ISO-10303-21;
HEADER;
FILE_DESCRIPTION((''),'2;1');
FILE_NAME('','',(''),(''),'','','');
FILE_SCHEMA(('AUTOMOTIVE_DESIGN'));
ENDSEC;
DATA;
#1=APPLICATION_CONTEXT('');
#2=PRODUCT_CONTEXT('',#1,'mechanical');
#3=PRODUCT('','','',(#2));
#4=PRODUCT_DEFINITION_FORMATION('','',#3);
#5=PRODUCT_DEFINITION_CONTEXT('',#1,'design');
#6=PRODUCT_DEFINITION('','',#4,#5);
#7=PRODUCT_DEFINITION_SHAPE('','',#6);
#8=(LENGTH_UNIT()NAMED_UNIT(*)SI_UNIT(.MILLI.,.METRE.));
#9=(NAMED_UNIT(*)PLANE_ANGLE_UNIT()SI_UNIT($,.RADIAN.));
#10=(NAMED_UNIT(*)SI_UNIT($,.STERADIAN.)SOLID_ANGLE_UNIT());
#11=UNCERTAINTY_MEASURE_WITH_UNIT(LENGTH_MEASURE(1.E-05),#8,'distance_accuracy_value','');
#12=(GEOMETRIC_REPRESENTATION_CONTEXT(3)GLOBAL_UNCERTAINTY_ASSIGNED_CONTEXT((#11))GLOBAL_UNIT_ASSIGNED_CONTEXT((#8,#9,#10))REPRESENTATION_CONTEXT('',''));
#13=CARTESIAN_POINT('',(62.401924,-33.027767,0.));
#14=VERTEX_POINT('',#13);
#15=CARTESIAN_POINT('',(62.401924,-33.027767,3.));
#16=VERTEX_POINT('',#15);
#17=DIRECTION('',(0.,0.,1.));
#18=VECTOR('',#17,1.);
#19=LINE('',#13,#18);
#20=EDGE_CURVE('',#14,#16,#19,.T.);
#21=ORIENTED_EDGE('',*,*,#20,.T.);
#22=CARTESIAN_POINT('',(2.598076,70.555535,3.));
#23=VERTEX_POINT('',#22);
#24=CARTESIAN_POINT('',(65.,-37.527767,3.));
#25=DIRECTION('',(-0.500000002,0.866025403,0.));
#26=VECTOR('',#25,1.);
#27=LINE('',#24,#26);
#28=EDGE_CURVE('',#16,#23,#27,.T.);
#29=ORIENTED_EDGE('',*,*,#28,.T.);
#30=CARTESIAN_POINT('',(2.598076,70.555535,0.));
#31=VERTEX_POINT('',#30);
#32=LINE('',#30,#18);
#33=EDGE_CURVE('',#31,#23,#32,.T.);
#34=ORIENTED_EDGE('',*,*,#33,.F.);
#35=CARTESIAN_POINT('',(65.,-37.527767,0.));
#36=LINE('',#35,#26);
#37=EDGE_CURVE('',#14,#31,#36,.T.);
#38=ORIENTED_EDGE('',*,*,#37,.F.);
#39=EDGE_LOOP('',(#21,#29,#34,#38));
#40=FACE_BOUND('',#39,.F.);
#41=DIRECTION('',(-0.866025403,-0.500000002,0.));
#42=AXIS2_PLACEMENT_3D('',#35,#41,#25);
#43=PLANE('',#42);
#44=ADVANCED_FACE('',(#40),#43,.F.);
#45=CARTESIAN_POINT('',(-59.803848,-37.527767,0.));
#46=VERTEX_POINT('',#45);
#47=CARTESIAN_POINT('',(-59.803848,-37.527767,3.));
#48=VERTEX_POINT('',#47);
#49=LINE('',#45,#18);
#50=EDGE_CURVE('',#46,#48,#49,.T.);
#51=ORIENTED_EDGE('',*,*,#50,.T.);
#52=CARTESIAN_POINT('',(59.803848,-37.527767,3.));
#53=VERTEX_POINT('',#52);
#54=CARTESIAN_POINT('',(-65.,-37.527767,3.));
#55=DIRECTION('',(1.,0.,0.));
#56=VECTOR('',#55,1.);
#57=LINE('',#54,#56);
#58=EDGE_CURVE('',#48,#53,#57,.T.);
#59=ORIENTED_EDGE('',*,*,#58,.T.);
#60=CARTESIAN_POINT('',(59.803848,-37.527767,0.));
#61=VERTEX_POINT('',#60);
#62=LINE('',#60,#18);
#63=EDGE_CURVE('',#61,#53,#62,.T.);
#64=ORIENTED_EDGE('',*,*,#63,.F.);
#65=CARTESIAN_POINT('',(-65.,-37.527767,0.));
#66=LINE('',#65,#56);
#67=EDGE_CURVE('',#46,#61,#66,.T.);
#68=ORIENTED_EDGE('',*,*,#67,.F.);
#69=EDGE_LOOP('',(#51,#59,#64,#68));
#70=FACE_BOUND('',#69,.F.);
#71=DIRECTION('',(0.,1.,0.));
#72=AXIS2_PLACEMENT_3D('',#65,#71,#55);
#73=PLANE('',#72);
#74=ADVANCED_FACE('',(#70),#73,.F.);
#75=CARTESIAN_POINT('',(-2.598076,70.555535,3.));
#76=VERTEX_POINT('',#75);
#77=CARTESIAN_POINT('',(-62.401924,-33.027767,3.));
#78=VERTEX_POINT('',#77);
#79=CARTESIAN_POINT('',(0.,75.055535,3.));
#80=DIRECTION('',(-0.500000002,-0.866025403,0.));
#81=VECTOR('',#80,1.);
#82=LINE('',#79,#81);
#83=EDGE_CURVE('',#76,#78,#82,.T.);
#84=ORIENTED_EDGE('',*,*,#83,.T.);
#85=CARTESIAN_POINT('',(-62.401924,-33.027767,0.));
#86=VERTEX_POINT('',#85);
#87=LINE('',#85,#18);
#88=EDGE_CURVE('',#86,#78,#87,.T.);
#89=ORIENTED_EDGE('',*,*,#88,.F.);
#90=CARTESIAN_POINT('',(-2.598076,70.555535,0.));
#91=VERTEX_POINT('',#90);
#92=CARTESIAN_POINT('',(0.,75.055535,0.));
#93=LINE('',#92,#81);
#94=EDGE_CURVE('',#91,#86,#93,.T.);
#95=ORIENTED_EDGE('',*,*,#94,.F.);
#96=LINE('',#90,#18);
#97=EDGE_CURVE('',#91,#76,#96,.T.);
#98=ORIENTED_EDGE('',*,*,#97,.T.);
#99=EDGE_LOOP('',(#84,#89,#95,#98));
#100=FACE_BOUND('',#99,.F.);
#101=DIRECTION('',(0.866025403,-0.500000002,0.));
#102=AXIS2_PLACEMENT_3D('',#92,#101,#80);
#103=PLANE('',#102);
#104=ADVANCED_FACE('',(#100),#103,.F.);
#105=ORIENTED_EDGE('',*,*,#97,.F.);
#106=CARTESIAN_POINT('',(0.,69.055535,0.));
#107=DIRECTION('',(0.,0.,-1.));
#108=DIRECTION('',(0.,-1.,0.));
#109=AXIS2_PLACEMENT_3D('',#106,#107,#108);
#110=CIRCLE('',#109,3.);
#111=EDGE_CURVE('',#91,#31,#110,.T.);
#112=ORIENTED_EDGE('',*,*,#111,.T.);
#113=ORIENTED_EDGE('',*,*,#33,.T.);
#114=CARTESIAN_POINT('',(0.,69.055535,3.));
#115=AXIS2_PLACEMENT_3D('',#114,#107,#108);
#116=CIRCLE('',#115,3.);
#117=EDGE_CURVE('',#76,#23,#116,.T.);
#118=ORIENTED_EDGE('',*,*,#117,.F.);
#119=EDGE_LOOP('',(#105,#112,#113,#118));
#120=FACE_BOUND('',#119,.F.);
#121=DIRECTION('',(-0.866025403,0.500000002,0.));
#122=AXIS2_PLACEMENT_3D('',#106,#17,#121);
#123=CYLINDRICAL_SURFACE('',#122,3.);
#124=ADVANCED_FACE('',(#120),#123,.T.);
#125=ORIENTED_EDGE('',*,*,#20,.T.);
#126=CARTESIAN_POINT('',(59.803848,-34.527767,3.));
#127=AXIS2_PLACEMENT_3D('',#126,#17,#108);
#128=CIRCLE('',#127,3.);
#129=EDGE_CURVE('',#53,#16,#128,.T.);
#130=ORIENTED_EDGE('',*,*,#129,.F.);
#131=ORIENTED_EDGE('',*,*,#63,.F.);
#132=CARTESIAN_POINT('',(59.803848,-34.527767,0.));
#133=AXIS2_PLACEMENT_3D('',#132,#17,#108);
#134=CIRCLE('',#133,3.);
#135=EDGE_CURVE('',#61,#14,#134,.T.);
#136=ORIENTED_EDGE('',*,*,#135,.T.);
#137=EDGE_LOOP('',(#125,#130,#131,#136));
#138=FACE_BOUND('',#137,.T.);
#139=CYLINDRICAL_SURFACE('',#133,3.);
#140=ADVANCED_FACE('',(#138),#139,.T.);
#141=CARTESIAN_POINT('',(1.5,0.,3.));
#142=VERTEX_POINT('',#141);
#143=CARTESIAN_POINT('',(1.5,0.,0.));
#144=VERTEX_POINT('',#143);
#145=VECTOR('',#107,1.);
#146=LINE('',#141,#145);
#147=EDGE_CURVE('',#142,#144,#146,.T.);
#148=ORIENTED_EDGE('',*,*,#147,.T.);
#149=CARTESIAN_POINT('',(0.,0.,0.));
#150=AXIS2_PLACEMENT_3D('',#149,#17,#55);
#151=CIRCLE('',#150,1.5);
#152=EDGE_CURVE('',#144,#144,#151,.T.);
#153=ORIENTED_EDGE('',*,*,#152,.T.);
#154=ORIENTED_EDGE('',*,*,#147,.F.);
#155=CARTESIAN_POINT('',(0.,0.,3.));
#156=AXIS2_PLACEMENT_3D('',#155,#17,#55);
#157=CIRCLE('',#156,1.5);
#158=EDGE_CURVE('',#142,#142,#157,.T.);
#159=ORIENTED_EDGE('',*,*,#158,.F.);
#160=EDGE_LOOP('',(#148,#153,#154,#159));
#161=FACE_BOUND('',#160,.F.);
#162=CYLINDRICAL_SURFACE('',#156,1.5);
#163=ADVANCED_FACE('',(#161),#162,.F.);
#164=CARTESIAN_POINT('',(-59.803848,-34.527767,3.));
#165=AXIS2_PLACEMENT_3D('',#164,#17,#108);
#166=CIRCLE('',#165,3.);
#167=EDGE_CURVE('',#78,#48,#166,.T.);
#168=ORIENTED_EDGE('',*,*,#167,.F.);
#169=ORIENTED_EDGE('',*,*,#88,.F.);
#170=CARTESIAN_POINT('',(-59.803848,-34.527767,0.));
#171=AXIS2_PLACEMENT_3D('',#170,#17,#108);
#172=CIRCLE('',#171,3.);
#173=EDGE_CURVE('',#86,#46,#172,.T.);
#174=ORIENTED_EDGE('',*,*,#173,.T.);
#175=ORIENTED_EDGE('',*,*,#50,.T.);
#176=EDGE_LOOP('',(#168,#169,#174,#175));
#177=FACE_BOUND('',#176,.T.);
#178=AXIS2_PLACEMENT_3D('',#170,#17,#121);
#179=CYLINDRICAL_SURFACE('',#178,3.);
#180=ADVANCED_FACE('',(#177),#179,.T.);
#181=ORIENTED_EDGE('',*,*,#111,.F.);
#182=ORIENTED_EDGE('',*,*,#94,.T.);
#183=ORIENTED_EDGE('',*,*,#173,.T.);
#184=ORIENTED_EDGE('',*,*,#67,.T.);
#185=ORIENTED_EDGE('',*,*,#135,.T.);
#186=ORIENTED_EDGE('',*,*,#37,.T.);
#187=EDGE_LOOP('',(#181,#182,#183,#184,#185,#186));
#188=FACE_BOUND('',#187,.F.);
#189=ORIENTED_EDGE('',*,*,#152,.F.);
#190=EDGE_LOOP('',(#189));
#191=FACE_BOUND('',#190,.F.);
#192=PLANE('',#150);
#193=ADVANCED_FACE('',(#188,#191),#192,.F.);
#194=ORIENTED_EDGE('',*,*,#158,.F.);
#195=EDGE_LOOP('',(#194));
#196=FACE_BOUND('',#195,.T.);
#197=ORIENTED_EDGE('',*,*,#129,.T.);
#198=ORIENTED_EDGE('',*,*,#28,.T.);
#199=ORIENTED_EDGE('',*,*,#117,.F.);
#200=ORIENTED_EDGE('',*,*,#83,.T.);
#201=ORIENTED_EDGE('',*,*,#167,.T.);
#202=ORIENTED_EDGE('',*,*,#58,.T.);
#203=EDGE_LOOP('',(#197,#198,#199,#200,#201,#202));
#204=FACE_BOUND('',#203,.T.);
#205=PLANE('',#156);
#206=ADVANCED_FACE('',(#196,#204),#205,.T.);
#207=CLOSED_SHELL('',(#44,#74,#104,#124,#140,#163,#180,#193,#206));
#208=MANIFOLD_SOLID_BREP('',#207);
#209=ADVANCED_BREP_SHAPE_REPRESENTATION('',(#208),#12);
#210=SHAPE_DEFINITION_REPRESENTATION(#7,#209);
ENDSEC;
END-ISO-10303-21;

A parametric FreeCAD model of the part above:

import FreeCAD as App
import Part
import Sketcher
Q = App.Units.Quantity


def edges_at(feature, points):
    """Names of the edges that pass closest to the given points."""
    edges = feature.Shape.Edges
    near = lambda p: min(range(len(edges)), key=lambda i: edges[i].distToShape(Part.Vertex(*p))[0])
    return sorted({f"Edge{near(p) + 1}" for p in points})

doc = App.newDocument("Part")
params = doc.addObject("Spreadsheet::Sheet", "Params")
for row, (alias, value) in enumerate([
    ("sketch1_width", "130 mm"),
    ("pad1_length", "3 mm"),
    ("fillet_radius", "3 mm"),
    ("sketch2_diameter", "3 mm"),
], start=1):
    params.set(f"A{row}", alias)
    params.set(f"B{row}", "=" + value)
    params.setAlias(f"B{row}", alias)

body = doc.addObject("PartDesign::Body", "Body")

sketch1 = body.newObject("Sketcher::SketchObject", "Sketch")
sketch1.AttachmentSupport = (doc.getObject("XY_Plane"), [""])
sketch1.MapMode = "FlatFace"
sketch1.addGeometry(Part.LineSegment(App.Vector(0, 75, 0), App.Vector(-65, -38, 0)), False)
sketch1.addGeometry(Part.LineSegment(App.Vector(-65, -38, 0), App.Vector(65, -38, 0)), False)
sketch1.addGeometry(Part.LineSegment(App.Vector(65, -38, 0), App.Vector(0, 75, 0)), False)
sketch1.addConstraint(Sketcher.Constraint("Coincident", 0, 2, 1, 1))
sketch1.addConstraint(Sketcher.Constraint("Coincident", 1, 2, 2, 1))
sketch1.addConstraint(Sketcher.Constraint("Coincident", 2, 2, 0, 1))
sketch1.addConstraint(Sketcher.Constraint("Horizontal", 1))
sketch1.addConstraint(Sketcher.Constraint("PointOnObject", 2, 2, -2))
sketch1.addConstraint(Sketcher.Constraint("Equal", 0, 2))
sketch1.addConstraint(Sketcher.Constraint("DistanceX", 1, 1, 1, 2, 130.0))
sketch1.addConstraint(Sketcher.Constraint("Angle", 0, Q("-120 deg")))
sketch1.addConstraint(Sketcher.Constraint("DistanceY", 0, 2, -1, 1, 37.527767))
sketch1.setExpression("Constraints[6]", "Params.sketch1_width")
pad1 = body.newObject("PartDesign::Pad", "Pad")
pad1.Profile = sketch1
pad1.setExpression("Length", "Params.pad1_length")
doc.recompute()

fillet = body.newObject("PartDesign::Fillet", "Fillet")
fillet.Base = (pad1, edges_at(pad1, [(-65, -37.528, 1.5), (65, -37.528, 1.5), (0, 75.056, 1.5)]))
fillet.setExpression("Radius", "Params.fillet_radius")

sketch2 = body.newObject("Sketcher::SketchObject", "Sketch001")
sketch2.AttachmentSupport = (doc.getObject("XY_Plane"), [""])
sketch2.MapMode = "FlatFace"
sketch2.AttachmentOffset = App.Placement(App.Vector(0, 0, 3), App.Rotation())
sketch2.addGeometry(Part.Circle(App.Vector(0, 0, 0), App.Vector(0, 0, 1), 1.5), False)
sketch2.addConstraint(Sketcher.Constraint("Coincident", 0, 3, -1, 1))
sketch2.addConstraint(Sketcher.Constraint("Diameter", 0, 3.0))
sketch2.setExpression("Constraints[1]", "Params.sketch2_diameter")
pocket1 = body.newObject("PartDesign::Pocket", "Pocket")
pocket1.Profile = sketch2
pocket1.Type = "ThroughAll"

doc.recompute()
